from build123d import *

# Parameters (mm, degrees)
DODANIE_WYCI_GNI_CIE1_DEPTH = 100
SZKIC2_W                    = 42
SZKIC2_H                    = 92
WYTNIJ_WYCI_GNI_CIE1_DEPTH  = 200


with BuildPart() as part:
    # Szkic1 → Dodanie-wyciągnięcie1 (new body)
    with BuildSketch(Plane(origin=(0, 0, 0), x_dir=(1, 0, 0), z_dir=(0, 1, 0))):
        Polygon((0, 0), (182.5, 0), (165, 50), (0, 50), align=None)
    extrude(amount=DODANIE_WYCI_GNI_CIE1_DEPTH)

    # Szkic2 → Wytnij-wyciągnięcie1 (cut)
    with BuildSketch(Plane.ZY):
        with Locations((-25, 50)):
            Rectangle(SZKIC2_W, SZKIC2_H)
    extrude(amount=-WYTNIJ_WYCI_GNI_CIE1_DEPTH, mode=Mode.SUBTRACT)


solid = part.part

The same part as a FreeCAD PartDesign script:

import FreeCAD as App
import Part
import Sketcher
from FreeCAD import Vector

doc = App.newDocument("Part")
body = doc.addObject("PartDesign::Body", "Body")

# Sketch on XZ plane
sketch1 = doc.addObject("Sketcher::SketchObject", "Sketch")
body.addObject(sketch1)
sketch1.AttachmentSupport = (doc.XZ_Plane, [""])
sketch1.MapMode = "FlatFace"
sketch1.addGeometry([
    Part.LineSegment(Vector(0, 0, 0), Vector(182, 0, 0)),
    Part.LineSegment(Vector(182, 0, 0), Vector(165, -50, 0)),
    Part.LineSegment(Vector(165, -50, 0), Vector(0, -50, 0)),
    Part.LineSegment(Vector(0, -50, 0), Vector(0, 0, 0)),
], False)
sketch1.addConstraint([
    Sketcher.Constraint("Coincident", 0, 2, 1, 1),
    Sketcher.Constraint("Coincident", 1, 2, 2, 1),
    Sketcher.Constraint("Coincident", 2, 2, 3, 1),
    Sketcher.Constraint("Coincident", 3, 2, 0, 1),
    Sketcher.Constraint("Horizontal", 0),
    Sketcher.Constraint("Horizontal", 2),
    Sketcher.Constraint("Vertical", 3),
    Sketcher.Constraint("Coincident", 3, 2, -1, 1),
    Sketcher.Constraint("DistanceX", 2, 2, 2, 1, 165.0),
    Sketcher.Constraint("DistanceY", 3, 1, 3, 2, 50.0),
    Sketcher.Constraint("DistanceX", 0, 1, 0, 2, 182.5),
])
pad1 = doc.addObject("PartDesign::Pad", "Pad")
body.addObject(pad1)
pad1.Profile = sketch1
pad1.Length = 100
pad1.Reversed = True

# Sketch on YZ plane
sketch2 = doc.addObject("Sketcher::SketchObject", "Sketch001")
body.addObject(sketch2)
sketch2.AttachmentSupport = (doc.YZ_Plane, [""])
sketch2.MapMode = "FlatFace"
sketch2.addGeometry([
    Part.LineSegment(Vector(96, -46, 0), Vector(4, -46, 0)),
    Part.LineSegment(Vector(4, -46, 0), Vector(4, -4, 0)),
    Part.LineSegment(Vector(4, -4, 0), Vector(96, -4, 0)),
    Part.LineSegment(Vector(96, -4, 0), Vector(96, -46, 0)),
], False)
sketch2.addConstraint([
    Sketcher.Constraint("Coincident", 0, 2, 1, 1),
    Sketcher.Constraint("Coincident", 1, 2, 2, 1),
    Sketcher.Constraint("Coincident", 2, 2, 3, 1),
    Sketcher.Constraint("Coincident", 3, 2, 0, 1),
    Sketcher.Constraint("Horizontal", 0),
    Sketcher.Constraint("Vertical", 1),
    Sketcher.Constraint("Horizontal", 2),
    Sketcher.Constraint("Vertical", 3),
    Sketcher.Constraint("DistanceX", 0, 2, 0, 1, 92.0),
    Sketcher.Constraint("DistanceY", 1, 1, 1, 2, 42.0),
    Sketcher.Constraint("DistanceX", -1, 1, 0, 2, 4.0),
    Sketcher.Constraint("DistanceY", 0, 2, -1, 1, 46.0),
])
pocket1 = doc.addObject("PartDesign::Pocket", "Pocket")
body.addObject(pocket1)
pocket1.Profile = sketch2
pocket1.Length = 200
pocket1.Reversed = True

doc.recompute()
